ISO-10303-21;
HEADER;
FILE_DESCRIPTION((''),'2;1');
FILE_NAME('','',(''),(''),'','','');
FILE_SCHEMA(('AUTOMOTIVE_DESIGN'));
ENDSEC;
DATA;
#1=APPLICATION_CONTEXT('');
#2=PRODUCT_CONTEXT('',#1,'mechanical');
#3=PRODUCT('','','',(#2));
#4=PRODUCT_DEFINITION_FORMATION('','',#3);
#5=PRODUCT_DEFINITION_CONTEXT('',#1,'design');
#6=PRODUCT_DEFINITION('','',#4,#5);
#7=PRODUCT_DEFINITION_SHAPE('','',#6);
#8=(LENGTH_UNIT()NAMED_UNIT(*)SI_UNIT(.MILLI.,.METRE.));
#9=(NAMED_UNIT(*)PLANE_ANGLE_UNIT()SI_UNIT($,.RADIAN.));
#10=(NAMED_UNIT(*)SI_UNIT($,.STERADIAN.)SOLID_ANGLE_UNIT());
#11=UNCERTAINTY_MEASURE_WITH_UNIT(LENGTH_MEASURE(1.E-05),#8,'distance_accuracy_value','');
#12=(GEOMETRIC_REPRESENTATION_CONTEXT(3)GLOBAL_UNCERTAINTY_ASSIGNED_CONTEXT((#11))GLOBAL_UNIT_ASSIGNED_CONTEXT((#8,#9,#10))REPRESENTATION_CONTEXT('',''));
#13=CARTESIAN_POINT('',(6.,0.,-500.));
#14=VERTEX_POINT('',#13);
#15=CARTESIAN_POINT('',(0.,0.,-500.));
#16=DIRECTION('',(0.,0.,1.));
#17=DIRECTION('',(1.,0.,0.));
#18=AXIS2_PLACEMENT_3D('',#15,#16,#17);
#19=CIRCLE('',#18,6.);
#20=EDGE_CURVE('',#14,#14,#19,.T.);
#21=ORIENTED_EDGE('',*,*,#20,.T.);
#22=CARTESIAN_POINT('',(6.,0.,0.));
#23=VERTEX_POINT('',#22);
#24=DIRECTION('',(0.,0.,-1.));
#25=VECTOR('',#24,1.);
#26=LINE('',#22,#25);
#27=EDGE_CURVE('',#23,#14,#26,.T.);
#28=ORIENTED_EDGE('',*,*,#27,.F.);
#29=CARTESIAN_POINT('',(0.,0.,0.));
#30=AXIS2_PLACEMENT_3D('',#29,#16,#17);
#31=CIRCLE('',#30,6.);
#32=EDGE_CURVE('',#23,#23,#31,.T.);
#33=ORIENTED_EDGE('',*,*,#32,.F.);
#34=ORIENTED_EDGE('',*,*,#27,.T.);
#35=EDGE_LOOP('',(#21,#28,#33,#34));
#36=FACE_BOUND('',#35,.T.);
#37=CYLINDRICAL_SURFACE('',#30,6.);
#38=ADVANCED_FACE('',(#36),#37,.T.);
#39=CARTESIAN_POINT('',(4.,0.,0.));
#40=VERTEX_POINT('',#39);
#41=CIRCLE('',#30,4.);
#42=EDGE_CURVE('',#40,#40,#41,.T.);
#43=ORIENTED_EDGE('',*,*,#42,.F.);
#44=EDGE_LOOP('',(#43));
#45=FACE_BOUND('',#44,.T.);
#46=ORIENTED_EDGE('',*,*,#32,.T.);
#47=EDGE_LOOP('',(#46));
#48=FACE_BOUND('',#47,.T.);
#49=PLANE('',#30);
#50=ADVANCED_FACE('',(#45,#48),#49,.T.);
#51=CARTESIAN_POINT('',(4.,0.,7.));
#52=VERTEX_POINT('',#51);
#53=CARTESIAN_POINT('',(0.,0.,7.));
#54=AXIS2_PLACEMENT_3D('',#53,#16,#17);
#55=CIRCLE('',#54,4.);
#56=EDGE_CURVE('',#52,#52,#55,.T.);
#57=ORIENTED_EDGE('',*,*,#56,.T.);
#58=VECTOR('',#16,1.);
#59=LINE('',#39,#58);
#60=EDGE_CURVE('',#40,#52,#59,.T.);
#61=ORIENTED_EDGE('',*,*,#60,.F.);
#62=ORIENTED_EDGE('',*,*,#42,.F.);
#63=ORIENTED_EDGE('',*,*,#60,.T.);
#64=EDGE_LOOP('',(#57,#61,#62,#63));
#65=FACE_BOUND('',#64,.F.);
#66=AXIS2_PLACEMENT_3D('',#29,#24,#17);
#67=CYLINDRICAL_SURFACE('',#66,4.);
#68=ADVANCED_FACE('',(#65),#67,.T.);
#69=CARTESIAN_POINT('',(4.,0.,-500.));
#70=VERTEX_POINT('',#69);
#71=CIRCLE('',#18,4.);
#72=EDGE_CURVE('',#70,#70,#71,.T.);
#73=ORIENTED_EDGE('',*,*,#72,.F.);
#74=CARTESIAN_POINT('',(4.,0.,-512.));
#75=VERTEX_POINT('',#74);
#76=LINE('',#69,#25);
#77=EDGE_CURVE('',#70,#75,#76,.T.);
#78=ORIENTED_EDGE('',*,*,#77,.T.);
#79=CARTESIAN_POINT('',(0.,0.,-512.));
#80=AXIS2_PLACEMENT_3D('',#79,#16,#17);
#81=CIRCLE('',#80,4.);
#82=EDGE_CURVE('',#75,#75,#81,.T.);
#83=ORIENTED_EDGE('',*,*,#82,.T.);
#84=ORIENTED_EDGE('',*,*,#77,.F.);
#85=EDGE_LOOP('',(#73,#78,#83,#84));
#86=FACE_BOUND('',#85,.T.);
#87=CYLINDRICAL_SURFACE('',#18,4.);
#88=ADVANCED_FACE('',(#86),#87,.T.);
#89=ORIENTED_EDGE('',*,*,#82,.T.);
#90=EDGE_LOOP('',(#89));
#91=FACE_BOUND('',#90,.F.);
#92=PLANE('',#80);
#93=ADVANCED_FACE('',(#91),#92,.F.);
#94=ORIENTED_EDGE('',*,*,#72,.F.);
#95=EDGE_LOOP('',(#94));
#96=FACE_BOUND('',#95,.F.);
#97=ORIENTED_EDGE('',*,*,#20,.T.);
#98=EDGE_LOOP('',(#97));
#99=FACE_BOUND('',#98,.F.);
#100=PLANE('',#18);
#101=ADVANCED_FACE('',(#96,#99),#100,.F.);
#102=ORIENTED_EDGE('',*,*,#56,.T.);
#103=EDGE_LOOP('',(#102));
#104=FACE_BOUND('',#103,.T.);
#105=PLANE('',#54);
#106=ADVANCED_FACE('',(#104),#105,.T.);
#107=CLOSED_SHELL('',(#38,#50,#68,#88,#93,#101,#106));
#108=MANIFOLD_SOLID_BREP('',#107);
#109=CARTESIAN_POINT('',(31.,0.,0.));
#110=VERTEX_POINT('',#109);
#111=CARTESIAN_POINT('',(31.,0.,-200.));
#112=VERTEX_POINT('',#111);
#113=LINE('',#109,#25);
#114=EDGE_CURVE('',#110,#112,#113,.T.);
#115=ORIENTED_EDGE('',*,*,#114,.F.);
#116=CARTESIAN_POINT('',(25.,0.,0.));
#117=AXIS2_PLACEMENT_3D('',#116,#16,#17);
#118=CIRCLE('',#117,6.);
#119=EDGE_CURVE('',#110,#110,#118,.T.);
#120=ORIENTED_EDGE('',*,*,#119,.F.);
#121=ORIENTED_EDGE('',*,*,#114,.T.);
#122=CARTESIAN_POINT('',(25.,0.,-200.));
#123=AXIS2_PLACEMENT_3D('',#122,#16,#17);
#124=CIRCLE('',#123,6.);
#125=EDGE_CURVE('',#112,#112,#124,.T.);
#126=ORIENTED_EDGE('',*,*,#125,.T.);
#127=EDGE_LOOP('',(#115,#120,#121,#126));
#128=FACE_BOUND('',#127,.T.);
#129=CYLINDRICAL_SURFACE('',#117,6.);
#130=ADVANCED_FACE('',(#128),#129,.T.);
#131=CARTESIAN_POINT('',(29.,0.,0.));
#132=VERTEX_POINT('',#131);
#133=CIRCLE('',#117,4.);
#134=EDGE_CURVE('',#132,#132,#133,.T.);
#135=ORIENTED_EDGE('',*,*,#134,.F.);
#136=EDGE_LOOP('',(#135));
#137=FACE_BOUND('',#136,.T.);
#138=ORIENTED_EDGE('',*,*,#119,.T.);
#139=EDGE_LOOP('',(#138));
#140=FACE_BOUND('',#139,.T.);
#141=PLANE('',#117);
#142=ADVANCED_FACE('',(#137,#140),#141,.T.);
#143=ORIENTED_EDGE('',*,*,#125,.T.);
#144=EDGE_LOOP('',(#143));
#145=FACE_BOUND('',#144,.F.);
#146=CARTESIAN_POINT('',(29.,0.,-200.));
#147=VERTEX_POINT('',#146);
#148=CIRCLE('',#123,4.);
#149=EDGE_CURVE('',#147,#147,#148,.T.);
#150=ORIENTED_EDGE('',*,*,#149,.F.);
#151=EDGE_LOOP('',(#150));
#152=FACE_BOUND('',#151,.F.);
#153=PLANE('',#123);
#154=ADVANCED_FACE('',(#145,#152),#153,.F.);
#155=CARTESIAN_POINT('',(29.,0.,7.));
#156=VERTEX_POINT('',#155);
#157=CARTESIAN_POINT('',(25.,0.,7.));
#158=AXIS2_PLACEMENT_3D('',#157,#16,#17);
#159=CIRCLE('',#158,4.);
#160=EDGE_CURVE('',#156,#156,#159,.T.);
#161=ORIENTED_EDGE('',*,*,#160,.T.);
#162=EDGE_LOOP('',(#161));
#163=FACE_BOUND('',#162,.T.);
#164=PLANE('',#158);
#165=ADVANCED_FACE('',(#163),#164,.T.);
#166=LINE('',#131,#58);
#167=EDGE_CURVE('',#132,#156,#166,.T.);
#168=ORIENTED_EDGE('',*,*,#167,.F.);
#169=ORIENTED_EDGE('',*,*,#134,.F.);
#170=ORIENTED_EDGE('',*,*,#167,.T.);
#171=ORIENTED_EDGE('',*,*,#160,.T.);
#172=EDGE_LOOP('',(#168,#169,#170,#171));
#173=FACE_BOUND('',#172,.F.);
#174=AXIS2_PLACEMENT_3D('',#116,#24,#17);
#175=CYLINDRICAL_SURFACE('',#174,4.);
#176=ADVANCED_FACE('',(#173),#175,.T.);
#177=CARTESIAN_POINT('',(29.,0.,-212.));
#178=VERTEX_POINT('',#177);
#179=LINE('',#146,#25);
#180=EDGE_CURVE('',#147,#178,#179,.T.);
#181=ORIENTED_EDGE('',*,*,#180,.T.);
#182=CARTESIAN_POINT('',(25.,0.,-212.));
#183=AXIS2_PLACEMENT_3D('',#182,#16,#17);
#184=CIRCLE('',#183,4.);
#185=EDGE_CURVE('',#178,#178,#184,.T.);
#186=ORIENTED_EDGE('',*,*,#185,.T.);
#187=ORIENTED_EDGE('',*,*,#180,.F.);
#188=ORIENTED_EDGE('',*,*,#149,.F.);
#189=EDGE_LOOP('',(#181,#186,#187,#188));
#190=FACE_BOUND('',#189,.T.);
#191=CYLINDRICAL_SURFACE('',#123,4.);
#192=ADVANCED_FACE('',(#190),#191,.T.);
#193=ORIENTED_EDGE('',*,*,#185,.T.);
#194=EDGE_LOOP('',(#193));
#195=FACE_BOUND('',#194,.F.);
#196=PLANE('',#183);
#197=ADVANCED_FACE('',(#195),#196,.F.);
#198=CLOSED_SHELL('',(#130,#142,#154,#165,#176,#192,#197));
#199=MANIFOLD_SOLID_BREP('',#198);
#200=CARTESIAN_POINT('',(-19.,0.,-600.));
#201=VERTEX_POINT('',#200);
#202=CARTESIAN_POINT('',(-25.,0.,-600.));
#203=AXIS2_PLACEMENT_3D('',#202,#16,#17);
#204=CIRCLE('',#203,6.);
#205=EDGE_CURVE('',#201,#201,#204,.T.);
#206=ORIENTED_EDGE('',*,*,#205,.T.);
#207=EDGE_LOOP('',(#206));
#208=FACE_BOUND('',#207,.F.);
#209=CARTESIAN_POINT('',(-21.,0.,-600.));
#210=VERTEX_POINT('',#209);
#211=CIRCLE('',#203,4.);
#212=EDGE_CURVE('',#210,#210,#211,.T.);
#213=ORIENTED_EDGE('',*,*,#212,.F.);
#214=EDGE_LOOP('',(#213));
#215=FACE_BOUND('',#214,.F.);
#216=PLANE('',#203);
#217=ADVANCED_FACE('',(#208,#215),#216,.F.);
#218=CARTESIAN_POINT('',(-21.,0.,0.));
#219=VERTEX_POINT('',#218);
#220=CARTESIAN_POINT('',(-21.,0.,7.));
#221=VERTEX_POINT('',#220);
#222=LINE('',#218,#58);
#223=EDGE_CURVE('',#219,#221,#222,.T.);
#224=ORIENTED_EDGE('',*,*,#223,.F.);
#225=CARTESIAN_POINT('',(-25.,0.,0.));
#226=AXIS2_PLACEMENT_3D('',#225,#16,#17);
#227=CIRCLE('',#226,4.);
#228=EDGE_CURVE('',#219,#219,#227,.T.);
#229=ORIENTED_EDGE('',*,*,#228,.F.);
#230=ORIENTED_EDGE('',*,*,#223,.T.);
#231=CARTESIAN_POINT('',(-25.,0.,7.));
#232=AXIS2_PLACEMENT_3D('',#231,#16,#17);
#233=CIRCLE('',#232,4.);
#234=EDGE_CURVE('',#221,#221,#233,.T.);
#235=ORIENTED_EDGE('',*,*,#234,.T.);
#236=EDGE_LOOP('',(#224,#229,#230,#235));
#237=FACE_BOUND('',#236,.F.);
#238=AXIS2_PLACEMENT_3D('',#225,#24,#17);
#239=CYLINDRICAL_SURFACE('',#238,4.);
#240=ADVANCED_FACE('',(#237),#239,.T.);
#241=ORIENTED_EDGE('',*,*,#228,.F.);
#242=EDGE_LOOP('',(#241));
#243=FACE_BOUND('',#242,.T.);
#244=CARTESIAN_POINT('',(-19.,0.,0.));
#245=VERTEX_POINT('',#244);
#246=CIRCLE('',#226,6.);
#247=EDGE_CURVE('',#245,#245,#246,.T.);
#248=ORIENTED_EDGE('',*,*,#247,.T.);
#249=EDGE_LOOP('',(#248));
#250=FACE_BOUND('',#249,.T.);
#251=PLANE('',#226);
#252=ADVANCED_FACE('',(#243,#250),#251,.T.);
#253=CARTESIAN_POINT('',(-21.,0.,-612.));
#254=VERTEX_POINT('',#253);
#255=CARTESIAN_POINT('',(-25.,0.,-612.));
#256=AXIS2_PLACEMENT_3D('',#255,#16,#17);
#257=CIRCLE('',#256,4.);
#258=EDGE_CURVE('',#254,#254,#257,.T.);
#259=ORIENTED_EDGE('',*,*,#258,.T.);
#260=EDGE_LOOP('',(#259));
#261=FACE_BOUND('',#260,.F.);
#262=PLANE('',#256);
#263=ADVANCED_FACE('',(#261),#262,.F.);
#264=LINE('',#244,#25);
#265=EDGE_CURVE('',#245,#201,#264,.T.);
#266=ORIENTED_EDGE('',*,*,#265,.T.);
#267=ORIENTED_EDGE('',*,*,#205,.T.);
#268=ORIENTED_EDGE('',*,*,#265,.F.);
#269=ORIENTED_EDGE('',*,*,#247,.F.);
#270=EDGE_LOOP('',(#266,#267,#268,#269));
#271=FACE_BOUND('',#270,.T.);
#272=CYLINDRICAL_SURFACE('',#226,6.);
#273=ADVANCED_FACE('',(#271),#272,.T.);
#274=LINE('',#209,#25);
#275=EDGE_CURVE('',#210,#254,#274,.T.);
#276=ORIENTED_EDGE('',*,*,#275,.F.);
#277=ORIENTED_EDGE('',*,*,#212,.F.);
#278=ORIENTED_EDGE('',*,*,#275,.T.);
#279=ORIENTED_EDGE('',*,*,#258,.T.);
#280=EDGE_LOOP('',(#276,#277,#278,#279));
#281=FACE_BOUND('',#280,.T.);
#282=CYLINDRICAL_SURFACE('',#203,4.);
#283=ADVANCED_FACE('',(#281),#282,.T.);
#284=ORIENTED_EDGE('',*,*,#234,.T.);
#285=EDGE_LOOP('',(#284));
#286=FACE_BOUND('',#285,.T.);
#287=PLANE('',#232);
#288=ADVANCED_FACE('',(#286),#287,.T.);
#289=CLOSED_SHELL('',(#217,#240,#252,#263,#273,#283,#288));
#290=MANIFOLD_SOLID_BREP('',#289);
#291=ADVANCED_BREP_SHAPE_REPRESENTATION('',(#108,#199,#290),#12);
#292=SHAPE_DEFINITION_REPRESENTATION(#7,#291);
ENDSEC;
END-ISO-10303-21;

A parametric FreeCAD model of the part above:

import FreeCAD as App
import Part
import Sketcher

V = App.Vector
Q = App.Units.Quantity

doc = App.newDocument("Part")
params = doc.addObject("Spreadsheet::Sheet", "Params")
for row, (alias, value) in enumerate([
    ("sketch1_diameter", "12 mm"),
    ("pad1_length", "600 mm"),
    ("sketch2_diameter", "8 mm"),
    ("pad2_length", "7 mm"),
    ("sketch3_diameter", "12 mm"),
    ("sketch3_diameter2", "8 mm"),
    ("pad3_length", "12 mm"),
    ("sketch4_diameter", "8 mm"),
    ("pad4_length", "12 mm"),
    ("sketch5_diameter", "12 mm"),
    ("pad5_length", "500 mm"),
    ("sketch6_diameter", "8 mm"),
    ("pad6_length", "7 mm"),
    ("sketch7_diameter", "12 mm"),
    ("sketch7_diameter2", "8 mm"),
    ("pad7_length", "12 mm"),
    ("sketch8_diameter", "8 mm"),
    ("pad8_length", "12 mm"),
    ("sketch9_diameter", "12 mm"),
    ("pad9_length", "200 mm"),
    ("sketch10_diameter", "8 mm"),
    ("pad10_length", "7 mm"),
    ("sketch11_diameter", "8 mm"),
    ("pad11_length", "12 mm"),
], start=1):
    params.set(f"A{row}", alias)
    params.set(f"B{row}", "=" + value)
    params.setAlias(f"B{row}", alias)

body = doc.addObject("PartDesign::Body", "Body")

# Sketch on XY plane
sketch1 = body.newObject("Sketcher::SketchObject", "Sketch")
sketch1.AttachmentSupport = (doc.getObject("XY_Plane"), [""])
sketch1.MapMode = "FlatFace"
sketch1.addGeometry(Part.Circle(V(-25, 0, 0), V(0, 0, 1), 6), False)
sketch1.addConstraint(Sketcher.Constraint("PointOnObject", 0, 3, -1))
sketch1.addConstraint(Sketcher.Constraint("Diameter", 0, Q("12 mm")))
sketch1.addConstraint(Sketcher.Constraint("DistanceX", 0, 3, -1, 1, Q("25 mm")))
sketch1.setExpression("Constraints[1]", "Params.sketch1_diameter")
pad1 = body.newObject("PartDesign::Pad", "Pad")
pad1.Profile = sketch1
pad1.setExpression("Length", "Params.pad1_length")
pad1.Reversed = True

# Sketch on XY plane
sketch2 = body.newObject("Sketcher::SketchObject", "Sketch001")
sketch2.AttachmentSupport = (doc.getObject("XY_Plane"), [""])
sketch2.MapMode = "FlatFace"
sketch2.addGeometry(Part.Circle(V(-25, 0, 0), V(0, 0, 1), 4), False)
sketch2.addConstraint(Sketcher.Constraint("PointOnObject", 0, 3, -1))
sketch2.addConstraint(Sketcher.Constraint("Diameter", 0, Q("8 mm")))
sketch2.addConstraint(Sketcher.Constraint("DistanceX", 0, 3, -1, 1, Q("25 mm")))
sketch2.setExpression("Constraints[1]", "Params.sketch2_diameter")
pad2 = body.newObject("PartDesign::Pad", "Pad001")
pad2.Profile = sketch2
pad2.setExpression("Length", "Params.pad2_length")

# Sketch on XY plane
sketch3 = body.newObject("Sketcher::SketchObject", "Sketch002")
sketch3.AttachmentSupport = (doc.getObject("XY_Plane"), [""])
sketch3.MapMode = "FlatFace"
sketch3.AttachmentOffset = App.Placement(V(0, 0, -200), App.Rotation())
sketch3.addGeometry(Part.Circle(V(-25, 0, 0), V(0, 0, 1), 6), False)
sketch3.addGeometry(Part.Circle(V(-25, 0, 0), V(0, 0, 1), 4), False)
sketch3.addConstraint(Sketcher.Constraint("Coincident", 1, 3, 0, 3))
sketch3.addConstraint(Sketcher.Constraint("PointOnObject", 0, 3, -1))
sketch3.addConstraint(Sketcher.Constraint("Diameter", 0, Q("12 mm")))
sketch3.addConstraint(Sketcher.Constraint("Diameter", 1, Q("8 mm")))
sketch3.addConstraint(Sketcher.Constraint("DistanceX", 0, 3, -1, 1, Q("25 mm")))
sketch3.setExpression("Constraints[2]", "Params.sketch3_diameter")
sketch3.setExpression("Constraints[3]", "Params.sketch3_diameter2")
pad3 = body.newObject("PartDesign::Pad", "Pad002")
pad3.Profile = sketch3
pad3.setExpression("Length", "Params.pad3_length")
pad3.Reversed = True

# Sketch on XY plane
sketch4 = body.newObject("Sketcher::SketchObject", "Sketch003")
sketch4.AttachmentSupport = (doc.getObject("XY_Plane"), [""])
sketch4.MapMode = "FlatFace"
sketch4.AttachmentOffset = App.Placement(V(0, 0, -600), App.Rotation())
sketch4.addGeometry(Part.Circle(V(-25, 0, 0), V(0, 0, 1), 4), False)
sketch4.addConstraint(Sketcher.Constraint("PointOnObject", 0, 3, -1))
sketch4.addConstraint(Sketcher.Constraint("Diameter", 0, Q("8 mm")))
sketch4.addConstraint(Sketcher.Constraint("DistanceX", 0, 3, -1, 1, Q("25 mm")))
sketch4.setExpression("Constraints[1]", "Params.sketch4_diameter")
pad4 = body.newObject("PartDesign::Pad", "Pad003")
pad4.Profile = sketch4
pad4.setExpression("Length", "Params.pad4_length")
pad4.Reversed = True
body2 = doc.addObject("PartDesign::Body", "Body001")

# Sketch on XY plane
sketch5 = body2.newObject("Sketcher::SketchObject", "Sketch004")
sketch5.AttachmentSupport = (doc.getObject("XY_Plane001"), [""])
sketch5.MapMode = "FlatFace"
sketch5.addGeometry(Part.Circle(V(0, 0, 0), V(0, 0, 1), 6), False)
sketch5.addConstraint(Sketcher.Constraint("Coincident", 0, 3, -1, 1))
sketch5.addConstraint(Sketcher.Constraint("Diameter", 0, Q("12 mm")))
sketch5.setExpression("Constraints[1]", "Params.sketch5_diameter")
pad5 = body2.newObject("PartDesign::Pad", "Pad004")
pad5.Profile = sketch5
pad5.setExpression("Length", "Params.pad5_length")
pad5.Reversed = True

# Sketch on XY plane
sketch6 = body2.newObject("Sketcher::SketchObject", "Sketch005")
sketch6.AttachmentSupport = (doc.getObject("XY_Plane001"), [""])
sketch6.MapMode = "FlatFace"
sketch6.addGeometry(Part.Circle(V(0, 0, 0), V(0, 0, 1), 4), False)
sketch6.addConstraint(Sketcher.Constraint("Coincident", 0, 3, -1, 1))
sketch6.addConstraint(Sketcher.Constraint("Diameter", 0, Q("8 mm")))
sketch6.setExpression("Constraints[1]", "Params.sketch6_diameter")
pad6 = body2.newObject("PartDesign::Pad", "Pad005")
pad6.Profile = sketch6
pad6.setExpression("Length", "Params.pad6_length")

# Sketch on XY plane
sketch7 = body2.newObject("Sketcher::SketchObject", "Sketch006")
sketch7.AttachmentSupport = (doc.getObject("XY_Plane001"), [""])
sketch7.MapMode = "FlatFace"
sketch7.AttachmentOffset = App.Placement(V(0, 0, -200), App.Rotation())
sketch7.addGeometry(Part.Circle(V(0, 0, 0), V(0, 0, 1), 6), False)
sketch7.addGeometry(Part.Circle(V(0, 0, 0), V(0, 0, 1), 4), False)
sketch7.addConstraint(Sketcher.Constraint("Coincident", 0, 3, -1, 1))
sketch7.addConstraint(Sketcher.Constraint("Coincident", 1, 3, -1, 1))
sketch7.addConstraint(Sketcher.Constraint("Diameter", 0, Q("12 mm")))
sketch7.addConstraint(Sketcher.Constraint("Diameter", 1, Q("8 mm")))
sketch7.setExpression("Constraints[2]", "Params.sketch7_diameter")
sketch7.setExpression("Constraints[3]", "Params.sketch7_diameter2")
pad7 = body2.newObject("PartDesign::Pad", "Pad006")
pad7.Profile = sketch7
pad7.setExpression("Length", "Params.pad7_length")
pad7.Reversed = True

# Sketch on XY plane
sketch8 = body2.newObject("Sketcher::SketchObject", "Sketch007")
sketch8.AttachmentSupport = (doc.getObject("XY_Plane001"), [""])
sketch8.MapMode = "FlatFace"
sketch8.AttachmentOffset = App.Placement(V(0, 0, -500), App.Rotation())
sketch8.addGeometry(Part.Circle(V(0, 0, 0), V(0, 0, 1), 4), False)
sketch8.addConstraint(Sketcher.Constraint("Coincident", 0, 3, -1, 1))
sketch8.addConstraint(Sketcher.Constraint("Diameter", 0, Q("8 mm")))
sketch8.setExpression("Constraints[1]", "Params.sketch8_diameter")
pad8 = body2.newObject("PartDesign::Pad", "Pad007")
pad8.Profile = sketch8
pad8.setExpression("Length", "Params.pad8_length")
pad8.Reversed = True
body3 = doc.addObject("PartDesign::Body", "Body002")

# Sketch on XY plane
sketch9 = body3.newObject("Sketcher::SketchObject", "Sketch008")
sketch9.AttachmentSupport = (doc.getObject("XY_Plane002"), [""])
sketch9.MapMode = "FlatFace"
sketch9.addGeometry(Part.Circle(V(25, 0, 0), V(0, 0, 1), 6), False)
sketch9.addConstraint(Sketcher.Constraint("PointOnObject", 0, 3, -1))
sketch9.addConstraint(Sketcher.Constraint("Diameter", 0, Q("12 mm")))
sketch9.addConstraint(Sketcher.Constraint("DistanceX", -1, 1, 0, 3, Q("25 mm")))
sketch9.setExpression("Constraints[1]", "Params.sketch9_diameter")
pad9 = body3.newObject("PartDesign::Pad", "Pad008")
pad9.Profile = sketch9
pad9.setExpression("Length", "Params.pad9_length")
pad9.Reversed = True

# Sketch on XY plane
sketch10 = body3.newObject("Sketcher::SketchObject", "Sketch009")
sketch10.AttachmentSupport = (doc.getObject("XY_Plane002"), [""])
sketch10.MapMode = "FlatFace"
sketch10.addGeometry(Part.Circle(V(25, 0, 0), V(0, 0, 1), 4), False)
sketch10.addConstraint(Sketcher.Constraint("PointOnObject", 0, 3, -1))
sketch10.addConstraint(Sketcher.Constraint("Diameter", 0, Q("8 mm")))
sketch10.addConstraint(Sketcher.Constraint("DistanceX", -1, 1, 0, 3, Q("25 mm")))
sketch10.setExpression("Constraints[1]", "Params.sketch10_diameter")
pad10 = body3.newObject("PartDesign::Pad", "Pad009")
pad10.Profile = sketch10
pad10.setExpression("Length", "Params.pad10_length")

# Sketch on XY plane
sketch11 = body3.newObject("Sketcher::SketchObject", "Sketch010")
sketch11.AttachmentSupport = (doc.getObject("XY_Plane002"), [""])
sketch11.MapMode = "FlatFace"
sketch11.AttachmentOffset = App.Placement(V(0, 0, -200), App.Rotation())
sketch11.addGeometry(Part.Circle(V(25, 0, 0), V(0, 0, 1), 4), False)
sketch11.addConstraint(Sketcher.Constraint("PointOnObject", 0, 3, -1))
sketch11.addConstraint(Sketcher.Constraint("Diameter", 0, Q("8 mm")))
sketch11.addConstraint(Sketcher.Constraint("DistanceX", -1, 1, 0, 3, Q("25 mm")))
sketch11.setExpression("Constraints[1]", "Params.sketch11_diameter")
pad11 = body3.newObject("PartDesign::Pad", "Pad010")
pad11.Profile = sketch11
pad11.setExpression("Length", "Params.pad11_length")
pad11.Reversed = True

doc.recompute()
